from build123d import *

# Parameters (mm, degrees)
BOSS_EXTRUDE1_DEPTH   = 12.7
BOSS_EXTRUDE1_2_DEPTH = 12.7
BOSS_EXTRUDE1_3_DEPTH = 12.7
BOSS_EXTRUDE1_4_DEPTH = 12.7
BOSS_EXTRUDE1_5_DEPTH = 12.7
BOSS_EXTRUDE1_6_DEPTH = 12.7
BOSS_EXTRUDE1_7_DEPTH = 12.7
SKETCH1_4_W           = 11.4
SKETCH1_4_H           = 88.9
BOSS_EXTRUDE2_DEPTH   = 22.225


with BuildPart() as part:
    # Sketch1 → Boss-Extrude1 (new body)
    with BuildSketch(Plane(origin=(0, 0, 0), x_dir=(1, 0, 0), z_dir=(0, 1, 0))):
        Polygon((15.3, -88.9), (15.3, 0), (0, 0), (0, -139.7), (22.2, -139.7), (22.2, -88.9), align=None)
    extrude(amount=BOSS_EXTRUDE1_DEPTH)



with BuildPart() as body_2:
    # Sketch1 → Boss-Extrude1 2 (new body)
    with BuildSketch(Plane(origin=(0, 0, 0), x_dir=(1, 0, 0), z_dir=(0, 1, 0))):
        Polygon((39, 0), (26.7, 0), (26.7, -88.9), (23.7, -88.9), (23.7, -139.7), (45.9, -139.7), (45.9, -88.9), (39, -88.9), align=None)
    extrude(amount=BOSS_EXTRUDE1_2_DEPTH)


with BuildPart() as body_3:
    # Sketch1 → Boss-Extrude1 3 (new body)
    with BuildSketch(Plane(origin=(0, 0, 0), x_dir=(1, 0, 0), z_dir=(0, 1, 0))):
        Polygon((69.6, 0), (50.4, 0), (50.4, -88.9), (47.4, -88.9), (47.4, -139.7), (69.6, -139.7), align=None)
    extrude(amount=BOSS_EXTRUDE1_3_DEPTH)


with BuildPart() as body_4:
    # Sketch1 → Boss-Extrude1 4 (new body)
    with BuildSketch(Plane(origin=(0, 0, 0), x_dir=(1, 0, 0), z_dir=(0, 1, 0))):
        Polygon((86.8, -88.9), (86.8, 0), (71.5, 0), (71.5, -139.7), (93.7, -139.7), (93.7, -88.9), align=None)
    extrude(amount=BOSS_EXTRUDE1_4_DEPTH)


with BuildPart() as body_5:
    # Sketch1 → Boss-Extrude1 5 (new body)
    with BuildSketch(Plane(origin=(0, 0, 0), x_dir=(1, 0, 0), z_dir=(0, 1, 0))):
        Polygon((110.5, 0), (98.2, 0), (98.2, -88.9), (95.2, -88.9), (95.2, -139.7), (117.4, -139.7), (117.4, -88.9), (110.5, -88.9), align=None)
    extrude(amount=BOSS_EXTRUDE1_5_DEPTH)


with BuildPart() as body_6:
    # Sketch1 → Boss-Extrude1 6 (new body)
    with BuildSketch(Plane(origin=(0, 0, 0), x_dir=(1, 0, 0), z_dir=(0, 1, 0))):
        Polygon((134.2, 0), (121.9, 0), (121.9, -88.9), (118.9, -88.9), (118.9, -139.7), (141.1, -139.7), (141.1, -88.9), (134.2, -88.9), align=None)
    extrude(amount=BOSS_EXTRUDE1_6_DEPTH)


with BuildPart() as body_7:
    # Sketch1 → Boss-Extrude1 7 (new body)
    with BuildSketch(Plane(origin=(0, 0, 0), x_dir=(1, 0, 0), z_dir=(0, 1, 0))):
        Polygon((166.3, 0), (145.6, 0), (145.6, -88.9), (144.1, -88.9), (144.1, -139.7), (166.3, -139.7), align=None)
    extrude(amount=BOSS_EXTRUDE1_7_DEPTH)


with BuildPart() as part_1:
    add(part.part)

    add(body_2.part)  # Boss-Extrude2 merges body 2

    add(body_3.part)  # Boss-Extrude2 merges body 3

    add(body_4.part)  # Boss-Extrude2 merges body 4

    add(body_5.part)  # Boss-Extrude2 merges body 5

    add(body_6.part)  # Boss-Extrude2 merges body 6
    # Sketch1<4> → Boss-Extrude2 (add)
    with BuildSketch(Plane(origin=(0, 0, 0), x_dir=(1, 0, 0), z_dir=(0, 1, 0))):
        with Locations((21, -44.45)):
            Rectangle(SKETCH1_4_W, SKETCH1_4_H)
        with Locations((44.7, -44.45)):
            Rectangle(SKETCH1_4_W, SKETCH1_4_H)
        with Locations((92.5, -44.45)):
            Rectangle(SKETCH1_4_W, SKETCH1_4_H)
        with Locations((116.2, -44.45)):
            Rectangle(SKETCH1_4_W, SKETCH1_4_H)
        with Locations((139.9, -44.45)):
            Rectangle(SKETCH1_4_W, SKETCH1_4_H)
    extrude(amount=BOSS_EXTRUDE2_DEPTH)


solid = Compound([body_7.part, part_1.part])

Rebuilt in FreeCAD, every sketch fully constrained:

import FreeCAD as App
import Part
import Sketcher
from FreeCAD import Vector
Q = App.Units.Quantity

doc = App.newDocument("Part")
body = doc.addObject("PartDesign::Body", "Body")

# Sketch on XZ plane
sketch1 = body.newObject("Sketcher::SketchObject", "Sketch")
sketch1.AttachmentSupport = (doc.getObject("XZ_Plane"), [""])
sketch1.MapMode = "FlatFace"
sketch1.addGeometry([
    Part.LineSegment(Vector(15, 89, 0), Vector(15, 0, 0)),  # 0
    Part.LineSegment(Vector(15, 0, 0), Vector(0, 0, 0)),  # 1
    Part.LineSegment(Vector(0, 0, 0), Vector(0, 140, 0)),  # 2
    Part.LineSegment(Vector(0, 140, 0), Vector(22, 140, 0)),  # 3
    Part.LineSegment(Vector(22, 140, 0), Vector(22, 89, 0)),  # 4
    Part.LineSegment(Vector(22, 89, 0), Vector(15, 89, 0)),  # 5
], False)
sketch1.addConstraint([
    Sketcher.Constraint("Coincident", 0, 2, 1, 1),
    Sketcher.Constraint("Coincident", 1, 2, 2, 1),
    Sketcher.Constraint("Coincident", 2, 2, 3, 1),
    Sketcher.Constraint("Coincident", 3, 2, 4, 1),
    Sketcher.Constraint("Coincident", 4, 2, 5, 1),
    Sketcher.Constraint("Coincident", 5, 2, 0, 1),
    Sketcher.Constraint("Vertical", 0),
    Sketcher.Constraint("Horizontal", 1),
    Sketcher.Constraint("Vertical", 2),
    Sketcher.Constraint("Horizontal", 3),
    Sketcher.Constraint("Vertical", 4),
    Sketcher.Constraint("Horizontal", 5),
    Sketcher.Constraint("Coincident", 1, 2, -1, 1),
    Sketcher.Constraint("DistanceX", 1, 2, 1, 1, Q("15.3 mm")),
    Sketcher.Constraint("DistanceX", 3, 1, 3, 2, Q("22.2 mm")),
    Sketcher.Constraint("DistanceY", 0, 2, 0, 1, Q("88.9 mm")),
    Sketcher.Constraint("DistanceY", 2, 1, 2, 2, Q("139.7 mm")),
])
pad1 = body.newObject("PartDesign::Pad", "Pad")
pad1.Profile = sketch1
pad1.Length = 12.7
pad1.Reversed = True
body2 = doc.addObject("PartDesign::Body", "Body001")

# Sketch on XZ plane
sketch2 = body2.newObject("Sketcher::SketchObject", "Sketch001")
sketch2.AttachmentSupport = (doc.getObject("XZ_Plane001"), [""])
sketch2.MapMode = "FlatFace"
sketch2.addGeometry([
    Part.LineSegment(Vector(39, 0, 0), Vector(26.7, 0, 0)),  # 0
    Part.LineSegment(Vector(26.7, 0, 0), Vector(26.7, 88.9, 0)),  # 1
    Part.LineSegment(Vector(26.7, 88.9, 0), Vector(23.7, 88.9, 0)),  # 2
    Part.LineSegment(Vector(23.7, 88.9, 0), Vector(23.7, 139.7, 0)),  # 3
    Part.LineSegment(Vector(23.7, 139.7, 0), Vector(45.9, 139.7, 0)),  # 4
    Part.LineSegment(Vector(45.9, 139.7, 0), Vector(45.9, 88.9, 0)),  # 5
    Part.LineSegment(Vector(45.9, 88.9, 0), Vector(39, 88.9, 0)),  # 6
    Part.LineSegment(Vector(39, 88.9, 0), Vector(39, 0, 0)),  # 7
], False)
sketch2.addConstraint([
    Sketcher.Constraint("Coincident", 0, 2, 1, 1),
    Sketcher.Constraint("Coincident", 1, 2, 2, 1),
    Sketcher.Constraint("Coincident", 2, 2, 3, 1),
    Sketcher.Constraint("Coincident", 3, 2, 4, 1),
    Sketcher.Constraint("Coincident", 4, 2, 5, 1),
    Sketcher.Constraint("Coincident", 5, 2, 6, 1),
    Sketcher.Constraint("Coincident", 6, 2, 7, 1),
    Sketcher.Constraint("Coincident", 7, 2, 0, 1),
    Sketcher.Constraint("Horizontal", 0),
    Sketcher.Constraint("Vertical", 1),
    Sketcher.Constraint("Horizontal", 2),
    Sketcher.Constraint("Vertical", 3),
    Sketcher.Constraint("Horizontal", 4),
    Sketcher.Constraint("Vertical", 5),
    Sketcher.Constraint("Horizontal", 6),
    Sketcher.Constraint("Vertical", 7),
    Sketcher.Constraint("PointOnObject", 0, 2, -1),
    Sketcher.Constraint("Horizontal", 2, 2, 5, 2),
    Sketcher.Constraint("DistanceX", 2, 2, 2, 1, Q("3 mm")),
    Sketcher.Constraint("DistanceX", 0, 2, 0, 1, Q("12.3 mm")),
    Sketcher.Constraint("DistanceX", 4, 1, 4, 2, Q("22.2 mm")),
    Sketcher.Constraint("DistanceY", 1, 1, 1, 2, Q("88.9 mm")),
    Sketcher.Constraint("DistanceY", 3, 1, 3, 2, Q("50.8 mm")),
    Sketcher.Constraint("DistanceX", -1, 1, 6, 2, Q("39 mm")),
])
pad2 = body2.newObject("PartDesign::Pad", "Pad001")
pad2.Profile = sketch2
pad2.Length = 12.7
pad2.Reversed = True
body3 = doc.addObject("PartDesign::Body", "Body002")

# Sketch on XZ plane
sketch3 = body3.newObject("Sketcher::SketchObject", "Sketch002")
sketch3.AttachmentSupport = (doc.getObject("XZ_Plane002"), [""])
sketch3.MapMode = "FlatFace"
sketch3.addGeometry([
    Part.LineSegment(Vector(69.6, 0, 0), Vector(50.4, 0, 0)),  # 0
    Part.LineSegment(Vector(50.4, 0, 0), Vector(50.4, 88.9, 0)),  # 1
    Part.LineSegment(Vector(50.4, 88.9, 0), Vector(47.4, 88.9, 0)),  # 2
    Part.LineSegment(Vector(47.4, 88.9, 0), Vector(47.4, 139.7, 0)),  # 3
    Part.LineSegment(Vector(47.4, 139.7, 0), Vector(69.6, 139.7, 0)),  # 4
    Part.LineSegment(Vector(69.6, 139.7, 0), Vector(69.6, 0, 0)),  # 5
], False)
sketch3.addConstraint([
    Sketcher.Constraint("Coincident", 0, 2, 1, 1),
    Sketcher.Constraint("Coincident", 1, 2, 2, 1),
    Sketcher.Constraint("Coincident", 2, 2, 3, 1),
    Sketcher.Constraint("Coincident", 3, 2, 4, 1),
    Sketcher.Constraint("Coincident", 4, 2, 5, 1),
    Sketcher.Constraint("Coincident", 5, 2, 0, 1),
    Sketcher.Constraint("Horizontal", 0),
    Sketcher.Constraint("Vertical", 1),
    Sketcher.Constraint("Horizontal", 2),
    Sketcher.Constraint("Vertical", 3),
    Sketcher.Constraint("Horizontal", 4),
    Sketcher.Constraint("Vertical", 5),
    Sketcher.Constraint("PointOnObject", 0, 2, -1),
    Sketcher.Constraint("DistanceX", 2, 2, 2, 1, Q("3 mm")),
    Sketcher.Constraint("DistanceX", 0, 2, 0, 1, Q("19.2 mm")),
    Sketcher.Constraint("DistanceY", 1, 1, 1, 2, Q("88.9 mm")),
    Sketcher.Constraint("DistanceY", 3, 1, 3, 2, Q("50.8 mm")),
    Sketcher.Constraint("DistanceX", -1, 1, 0, 2, Q("50.4 mm")),
])
pad3 = body3.newObject("PartDesign::Pad", "Pad002")
pad3.Profile = sketch3
pad3.Length = 12.7
pad3.Reversed = True
body4 = doc.addObject("PartDesign::Body", "Body003")

# Sketch on XZ plane
sketch4 = body4.newObject("Sketcher::SketchObject", "Sketch003")
sketch4.AttachmentSupport = (doc.getObject("XZ_Plane003"), [""])
sketch4.MapMode = "FlatFace"
sketch4.addGeometry([
    Part.LineSegment(Vector(87, 89, 0), Vector(87, 0, 0)),  # 0
    Part.LineSegment(Vector(87, 0, 0), Vector(72, 0, 0)),  # 1
    Part.LineSegment(Vector(72, 0, 0), Vector(72, 140, 0)),  # 2
    Part.LineSegment(Vector(72, 140, 0), Vector(94, 140, 0)),  # 3
    Part.LineSegment(Vector(94, 140, 0), Vector(94, 89, 0)),  # 4
    Part.LineSegment(Vector(94, 89, 0), Vector(87, 89, 0)),  # 5
], False)
sketch4.addConstraint([
    Sketcher.Constraint("Coincident", 0, 2, 1, 1),
    Sketcher.Constraint("Coincident", 1, 2, 2, 1),
    Sketcher.Constraint("Coincident", 2, 2, 3, 1),
    Sketcher.Constraint("Coincident", 3, 2, 4, 1),
    Sketcher.Constraint("Coincident", 4, 2, 5, 1),
    Sketcher.Constraint("Coincident", 5, 2, 0, 1),
    Sketcher.Constraint("Vertical", 0),
    Sketcher.Constraint("Horizontal", 1),
    Sketcher.Constraint("Vertical", 2),
    Sketcher.Constraint("Horizontal", 3),
    Sketcher.Constraint("Vertical", 4),
    Sketcher.Constraint("Horizontal", 5),
    Sketcher.Constraint("PointOnObject", 0, 2, -1),
    Sketcher.Constraint("DistanceX", 1, 2, 1, 1, Q("15.3 mm")),
    Sketcher.Constraint("DistanceX", 3, 1, 3, 2, Q("22.2 mm")),
    Sketcher.Constraint("DistanceY", 0, 2, 0, 1, Q("88.9 mm")),
    Sketcher.Constraint("DistanceY", 2, 1, 2, 2, Q("139.7 mm")),
    Sketcher.Constraint("DistanceX", -1, 1, 0, 2, Q("86.8 mm")),
])
pad4 = body4.newObject("PartDesign::Pad", "Pad003")
pad4.Profile = sketch4
pad4.Length = 12.7
pad4.Reversed = True
body5 = doc.addObject("PartDesign::Body", "Body004")

# Sketch on XZ plane
sketch5 = body5.newObject("Sketcher::SketchObject", "Sketch004")
sketch5.AttachmentSupport = (doc.getObject("XZ_Plane004"), [""])
sketch5.MapMode = "FlatFace"
sketch5.addGeometry([
    Part.LineSegment(Vector(110.5, 0, 0), Vector(98.2, 0, 0)),  # 0
    Part.LineSegment(Vector(98.2, 0, 0), Vector(98.2, 88.9, 0)),  # 1
    Part.LineSegment(Vector(98.2, 88.9, 0), Vector(95.2, 88.9, 0)),  # 2
    Part.LineSegment(Vector(95.2, 88.9, 0), Vector(95.2, 139.7, 0)),  # 3
    Part.LineSegment(Vector(95.2, 139.7, 0), Vector(117.4, 139.7, 0)),  # 4
    Part.LineSegment(Vector(117.4, 139.7, 0), Vector(117.4, 88.9, 0)),  # 5
    Part.LineSegment(Vector(117.4, 88.9, 0), Vector(110.5, 88.9, 0)),  # 6
    Part.LineSegment(Vector(110.5, 88.9, 0), Vector(110.5, 0, 0)),  # 7
], False)
sketch5.addConstraint([
    Sketcher.Constraint("Coincident", 0, 2, 1, 1),
    Sketcher.Constraint("Coincident", 1, 2, 2, 1),
    Sketcher.Constraint("Coincident", 2, 2, 3, 1),
    Sketcher.Constraint("Coincident", 3, 2, 4, 1),
    Sketcher.Constraint("Coincident", 4, 2, 5, 1),
    Sketcher.Constraint("Coincident", 5, 2, 6, 1),
    Sketcher.Constraint("Coincident", 6, 2, 7, 1),
    Sketcher.Constraint("Coincident", 7, 2, 0, 1),
    Sketcher.Constraint("Horizontal", 0),
    Sketcher.Constraint("Vertical", 1),
    Sketcher.Constraint("Horizontal", 2),
    Sketcher.Constraint("Vertical", 3),
    Sketcher.Constraint("Horizontal", 4),
    Sketcher.Constraint("Vertical", 5),
    Sketcher.Constraint("Horizontal", 6),
    Sketcher.Constraint("Vertical", 7),
    Sketcher.Constraint("PointOnObject", 0, 2, -1),
    Sketcher.Constraint("Horizontal", 2, 2, 5, 2),
    Sketcher.Constraint("DistanceX", 2, 2, 2, 1, Q("3 mm")),
    Sketcher.Constraint("DistanceX", 0, 2, 0, 1, Q("12.3 mm")),
    Sketcher.Constraint("DistanceX", 4, 1, 4, 2, Q("22.2 mm")),
    Sketcher.Constraint("DistanceY", 1, 1, 1, 2, Q("88.9 mm")),
    Sketcher.Constraint("DistanceY", 3, 1, 3, 2, Q("50.8 mm")),
    Sketcher.Constraint("DistanceX", -1, 1, 0, 2, Q("98.2 mm")),
])
pad5 = body5.newObject("PartDesign::Pad", "Pad004")
pad5.Profile = sketch5
pad5.Length = 12.7
pad5.Reversed = True
body6 = doc.addObject("PartDesign::Body", "Body005")

# Sketch on XZ plane
sketch6 = body6.newObject("Sketcher::SketchObject", "Sketch005")
sketch6.AttachmentSupport = (doc.getObject("XZ_Plane005"), [""])
sketch6.MapMode = "FlatFace"
sketch6.addGeometry([
    Part.LineSegment(Vector(134.2, 0, 0), Vector(121.9, 0, 0)),  # 0
    Part.LineSegment(Vector(121.9, 0, 0), Vector(121.9, 88.9, 0)),  # 1
    Part.LineSegment(Vector(121.9, 88.9, 0), Vector(118.9, 88.9, 0)),  # 2
    Part.LineSegment(Vector(118.9, 88.9, 0), Vector(118.9, 139.7, 0)),  # 3
    Part.LineSegment(Vector(118.9, 139.7, 0), Vector(141.1, 139.7, 0)),  # 4
    Part.LineSegment(Vector(141.1, 139.7, 0), Vector(141.1, 88.9, 0)),  # 5
    Part.LineSegment(Vector(141.1, 88.9, 0), Vector(134.2, 88.9, 0)),  # 6
    Part.LineSegment(Vector(134.2, 88.9, 0), Vector(134.2, 0, 0)),  # 7
], False)
sketch6.addConstraint([
    Sketcher.Constraint("Coincident", 0, 2, 1, 1),
    Sketcher.Constraint("Coincident", 1, 2, 2, 1),
    Sketcher.Constraint("Coincident", 2, 2, 3, 1),
    Sketcher.Constraint("Coincident", 3, 2, 4, 1),
    Sketcher.Constraint("Coincident", 4, 2, 5, 1),
    Sketcher.Constraint("Coincident", 5, 2, 6, 1),
    Sketcher.Constraint("Coincident", 6, 2, 7, 1),
    Sketcher.Constraint("Coincident", 7, 2, 0, 1),
    Sketcher.Constraint("Horizontal", 0),
    Sketcher.Constraint("Vertical", 1),
    Sketcher.Constraint("Horizontal", 2),
    Sketcher.Constraint("Vertical", 3),
    Sketcher.Constraint("Horizontal", 4),
    Sketcher.Constraint("Vertical", 5),
    Sketcher.Constraint("Horizontal", 6),
    Sketcher.Constraint("Vertical", 7),
    Sketcher.Constraint("PointOnObject", 0, 2, -1),
    Sketcher.Constraint("Horizontal", 2, 2, 5, 2),
    Sketcher.Constraint("DistanceX", 2, 2, 2, 1, Q("3 mm")),
    Sketcher.Constraint("DistanceX", 0, 2, 0, 1, Q("12.3 mm")),
    Sketcher.Constraint("DistanceX", 4, 1, 4, 2, Q("22.2 mm")),
    Sketcher.Constraint("DistanceY", 1, 1, 1, 2, Q("88.9 mm")),
    Sketcher.Constraint("DistanceY", 3, 1, 3, 2, Q("50.8 mm")),
    Sketcher.Constraint("DistanceX", -1, 1, 0, 2, Q("121.9 mm")),
])
pad6 = body6.newObject("PartDesign::Pad", "Pad005")
pad6.Profile = sketch6
pad6.Length = 12.7
pad6.Reversed = True
body7 = doc.addObject("PartDesign::Body", "Body006")

# Sketch on XZ plane
sketch7 = body7.newObject("Sketcher::SketchObject", "Sketch006")
sketch7.AttachmentSupport = (doc.getObject("XZ_Plane006"), [""])
sketch7.MapMode = "FlatFace"
sketch7.addGeometry([
    Part.LineSegment(Vector(166.3, 0, 0), Vector(145.6, 0, 0)),  # 0
    Part.LineSegment(Vector(145.6, 0, 0), Vector(145.6, 88.9, 0)),  # 1
    Part.LineSegment(Vector(145.6, 88.9, 0), Vector(144.1, 88.9, 0)),  # 2
    Part.LineSegment(Vector(144.1, 88.9, 0), Vector(144.1, 139.7, 0)),  # 3
    Part.LineSegment(Vector(144.1, 139.7, 0), Vector(166.3, 139.7, 0)),  # 4
    Part.LineSegment(Vector(166.3, 139.7, 0), Vector(166.3, 0, 0)),  # 5
], False)
sketch7.addConstraint([
    Sketcher.Constraint("Coincident", 0, 2, 1, 1),
    Sketcher.Constraint("Coincident", 1, 2, 2, 1),
    Sketcher.Constraint("Coincident", 2, 2, 3, 1),
    Sketcher.Constraint("Coincident", 3, 2, 4, 1),
    Sketcher.Constraint("Coincident", 4, 2, 5, 1),
    Sketcher.Constraint("Coincident", 5, 2, 0, 1),
    Sketcher.Constraint("Horizontal", 0),
    Sketcher.Constraint("Vertical", 1),
    Sketcher.Constraint("Horizontal", 2),
    Sketcher.Constraint("Vertical", 3),
    Sketcher.Constraint("Horizontal", 4),
    Sketcher.Constraint("Vertical", 5),
    Sketcher.Constraint("PointOnObject", 0, 2, -1),
    Sketcher.Constraint("DistanceX", 0, 2, 0, 1, Q("20.7 mm")),
    Sketcher.Constraint("DistanceX", 2, 2, 2, 1, Q("1.5 mm")),
    Sketcher.Constraint("DistanceY", 1, 1, 1, 2, Q("88.9 mm")),
    Sketcher.Constraint("DistanceY", 3, 1, 3, 2, Q("50.8 mm")),
    Sketcher.Constraint("DistanceX", -1, 1, 0, 2, Q("145.6 mm")),
])
pad7 = body7.newObject("PartDesign::Pad", "Pad006")
pad7.Profile = sketch7
pad7.Length = 12.7
pad7.Reversed = True
body.AllowCompound = True
doc.recompute()

boolean = body.newObject("PartDesign::Boolean", "Boolean")
boolean.Type = "Fuse"
boolean.addObjects([body2])
doc.recompute()

boolean2 = body.newObject("PartDesign::Boolean", "Boolean001")
boolean2.Type = "Fuse"
boolean2.addObjects([body3])
doc.recompute()

boolean3 = body.newObject("PartDesign::Boolean", "Boolean002")
boolean3.Type = "Fuse"
boolean3.addObjects([body4])
doc.recompute()

boolean4 = body.newObject("PartDesign::Boolean", "Boolean003")
boolean4.Type = "Fuse"
boolean4.addObjects([body5])
doc.recompute()

boolean5 = body.newObject("PartDesign::Boolean", "Boolean004")
boolean5.Type = "Fuse"
boolean5.addObjects([body6])

# Sketch on XZ plane
sketch8 = body.newObject("Sketcher::SketchObject", "Sketch007")
sketch8.AttachmentSupport = (doc.getObject("XZ_Plane"), [""])
sketch8.MapMode = "FlatFace"
sketch8.addGeometry([
    Part.LineSegment(Vector(15, 0, 0), Vector(15, 89, 0)),  # 0
    Part.LineSegment(Vector(15, 89, 0), Vector(27, 89, 0)),  # 1
    Part.LineSegment(Vector(27, 89, 0), Vector(27, 0, 0)),  # 2
    Part.LineSegment(Vector(27, 0, 0), Vector(15, 0, 0)),  # 3
    Part.LineSegment(Vector(39, 0, 0), Vector(39, 89, 0)),  # 4
    Part.LineSegment(Vector(39, 89, 0), Vector(50, 89, 0)),  # 5
    Part.LineSegment(Vector(50, 89, 0), Vector(50, 0, 0)),  # 6
    Part.LineSegment(Vector(50, 0, 0), Vector(39, 0, 0)),  # 7
    Part.LineSegment(Vector(87, 0, 0), Vector(87, 89, 0)),  # 8
    Part.LineSegment(Vector(87, 89, 0), Vector(98, 89, 0)),  # 9
    Part.LineSegment(Vector(98, 89, 0), Vector(98, 0, 0)),  # 10
    Part.LineSegment(Vector(98, 0, 0), Vector(87, 0, 0)),  # 11
    Part.LineSegment(Vector(110, 0, 0), Vector(110, 89, 0)),  # 12
    Part.LineSegment(Vector(110, 89, 0), Vector(122, 89, 0)),  # 13
    Part.LineSegment(Vector(122, 89, 0), Vector(122, 0, 0)),  # 14
    Part.LineSegment(Vector(122, 0, 0), Vector(110, 0, 0)),  # 15
    Part.LineSegment(Vector(134, 0, 0), Vector(134, 89, 0)),  # 16
    Part.LineSegment(Vector(134, 89, 0), Vector(146, 89, 0)),  # 17
    Part.LineSegment(Vector(146, 89, 0), Vector(146, 0, 0)),  # 18
    Part.LineSegment(Vector(146, 0, 0), Vector(134, 0, 0)),  # 19
], False)
sketch8.addConstraint([
    Sketcher.Constraint("Coincident", 0, 2, 1, 1),
    Sketcher.Constraint("Coincident", 1, 2, 2, 1),
    Sketcher.Constraint("Coincident", 2, 2, 3, 1),
    Sketcher.Constraint("Coincident", 3, 2, 0, 1),
    Sketcher.Constraint("Coincident", 4, 2, 5, 1),
    Sketcher.Constraint("Coincident", 5, 2, 6, 1),
    Sketcher.Constraint("Coincident", 6, 2, 7, 1),
    Sketcher.Constraint("Coincident", 7, 2, 4, 1),
    Sketcher.Constraint("Coincident", 8, 2, 9, 1),
    Sketcher.Constraint("Coincident", 9, 2, 10, 1),
    Sketcher.Constraint("Coincident", 10, 2, 11, 1),
    Sketcher.Constraint("Coincident", 11, 2, 8, 1),
    Sketcher.Constraint("Coincident", 12, 2, 13, 1),
    Sketcher.Constraint("Coincident", 13, 2, 14, 1),
    Sketcher.Constraint("Coincident", 14, 2, 15, 1),
    Sketcher.Constraint("Coincident", 15, 2, 12, 1),
    Sketcher.Constraint("Coincident", 16, 2, 17, 1),
    Sketcher.Constraint("Coincident", 17, 2, 18, 1),
    Sketcher.Constraint("Coincident", 18, 2, 19, 1),
    Sketcher.Constraint("Coincident", 19, 2, 16, 1),
    Sketcher.Constraint("Vertical", 0),
    Sketcher.Constraint("Horizontal", 1),
    Sketcher.Constraint("Vertical", 2),
    Sketcher.Constraint("Horizontal", 3),
    Sketcher.Constraint("Vertical", 4),
    Sketcher.Constraint("Horizontal", 5),
    Sketcher.Constraint("Vertical", 6),
    Sketcher.Constraint("Horizontal", 7),
    Sketcher.Constraint("Vertical", 8),
    Sketcher.Constraint("Horizontal", 9),
    Sketcher.Constraint("Vertical", 10),
    Sketcher.Constraint("Horizontal", 11),
    Sketcher.Constraint("Vertical", 12),
    Sketcher.Constraint("Horizontal", 13),
    Sketcher.Constraint("Vertical", 14),
    Sketcher.Constraint("Horizontal", 15),
    Sketcher.Constraint("Vertical", 16),
    Sketcher.Constraint("Horizontal", 17),
    Sketcher.Constraint("Vertical", 18),
    Sketcher.Constraint("Horizontal", 19),
    Sketcher.Constraint("PointOnObject", 2, 2, -1),
    Sketcher.Constraint("PointOnObject", 6, 2, -1),
    Sketcher.Constraint("PointOnObject", 10, 2, -1),
    Sketcher.Constraint("PointOnObject", 14, 2, -1),
    Sketcher.Constraint("PointOnObject", 18, 2, -1),
    Sketcher.Constraint("Horizontal", 1, 2, 4, 2),
    Sketcher.Constraint("Horizontal", 5, 2, 8, 2),
    Sketcher.Constraint("Horizontal", 9, 2, 12, 2),
    Sketcher.Constraint("Horizontal", 13, 2, 16, 2),
    Sketcher.Constraint("Equal", 3, 5),
    Sketcher.Constraint("Equal", 7, 9),
    Sketcher.Constraint("Equal", 11, 13),
    Sketcher.Constraint("Equal", 15, 17),
    Sketcher.Constraint("DistanceX", 1, 1, 1, 2, Q("11.4 mm")),
    Sketcher.Constraint("DistanceY", 0, 1, 0, 2, Q("88.9 mm")),
    Sketcher.Constraint("DistanceX", -1, 1, 4, 2, Q("39 mm")),
    Sketcher.Constraint("DistanceX", 9, 2, 16, 2, Q("36 mm")),
    Sketcher.Constraint("DistanceX", -1, 1, 0, 2, Q("15.3 mm")),
    Sketcher.Constraint("DistanceX", -1, 1, 8, 2, Q("86.8 mm")),
    Sketcher.Constraint("DistanceX", -1, 1, 12, 2, Q("110.5 mm")),
])
pad8 = body.newObject("PartDesign::Pad", "Pad007")
pad8.Profile = sketch8
pad8.Length = 22.225
pad8.Reversed = True

doc.recompute()
